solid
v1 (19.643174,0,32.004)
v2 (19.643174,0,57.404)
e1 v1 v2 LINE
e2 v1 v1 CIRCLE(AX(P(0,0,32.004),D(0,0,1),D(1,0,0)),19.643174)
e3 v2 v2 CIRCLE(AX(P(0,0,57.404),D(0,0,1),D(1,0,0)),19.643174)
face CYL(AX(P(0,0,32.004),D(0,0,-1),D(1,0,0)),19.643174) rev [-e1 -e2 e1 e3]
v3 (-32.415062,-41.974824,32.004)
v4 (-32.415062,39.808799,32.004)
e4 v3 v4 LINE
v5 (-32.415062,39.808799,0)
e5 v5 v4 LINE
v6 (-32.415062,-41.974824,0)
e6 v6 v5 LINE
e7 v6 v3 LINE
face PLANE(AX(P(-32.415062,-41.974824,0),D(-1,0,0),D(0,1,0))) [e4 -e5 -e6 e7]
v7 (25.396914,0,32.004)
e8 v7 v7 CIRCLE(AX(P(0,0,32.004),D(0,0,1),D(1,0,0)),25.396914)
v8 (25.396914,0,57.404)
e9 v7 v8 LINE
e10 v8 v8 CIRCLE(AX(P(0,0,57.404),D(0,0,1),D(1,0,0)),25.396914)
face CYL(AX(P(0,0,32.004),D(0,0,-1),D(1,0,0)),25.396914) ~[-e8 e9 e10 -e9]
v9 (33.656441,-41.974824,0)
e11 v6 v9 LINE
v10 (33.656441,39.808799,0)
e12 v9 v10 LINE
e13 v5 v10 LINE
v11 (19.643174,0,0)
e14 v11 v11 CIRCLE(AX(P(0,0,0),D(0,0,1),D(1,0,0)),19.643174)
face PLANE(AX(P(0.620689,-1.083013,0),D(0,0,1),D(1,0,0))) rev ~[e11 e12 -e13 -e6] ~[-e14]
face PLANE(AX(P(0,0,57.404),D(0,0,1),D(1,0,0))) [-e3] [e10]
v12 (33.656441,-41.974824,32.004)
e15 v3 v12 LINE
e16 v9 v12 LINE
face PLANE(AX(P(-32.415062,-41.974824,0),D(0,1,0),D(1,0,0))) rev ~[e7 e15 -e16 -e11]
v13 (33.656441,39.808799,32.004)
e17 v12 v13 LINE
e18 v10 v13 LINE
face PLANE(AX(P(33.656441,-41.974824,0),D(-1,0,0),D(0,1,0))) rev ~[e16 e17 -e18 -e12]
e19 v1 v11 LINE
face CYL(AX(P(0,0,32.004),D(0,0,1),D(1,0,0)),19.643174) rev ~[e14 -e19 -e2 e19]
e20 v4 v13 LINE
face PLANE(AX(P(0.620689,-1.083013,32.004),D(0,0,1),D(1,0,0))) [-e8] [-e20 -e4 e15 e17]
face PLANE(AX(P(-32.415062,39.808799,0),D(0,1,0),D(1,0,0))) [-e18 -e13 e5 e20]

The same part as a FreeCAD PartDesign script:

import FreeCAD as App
import Part
import Sketcher
from FreeCAD import Vector
Q = App.Units.Quantity


def add_polygon(sketch, points):
    """Adds a closed chain of lines whose ends are joined by coincident constraints."""
    first, n = sketch.GeometryCount, len(points)
    for a, b in zip(points, points[1:] + points[:1]):
        sketch.addGeometry(Part.LineSegment(App.Vector(*a, 0), App.Vector(*b, 0)), False)
    for i in range(n):
        sketch.addConstraint(Sketcher.Constraint("Coincident", first + i, 2, first + (i + 1) % n, 1))

doc = App.newDocument("Part")
body = doc.addObject("PartDesign::Body", "Body")

sketch1 = doc.addObject("Sketcher::SketchObject", "Sketch")
body.addObject(sketch1)
sketch1.AttachmentSupport = (doc.XY_Plane, [""])
sketch1.MapMode = "FlatFace"
add_polygon(sketch1, [(-32, 40), (-32, -42), (34, -42), (34, 40)])
sketch1.addConstraint([
    Sketcher.Constraint("Vertical", 0),
    Sketcher.Constraint("Horizontal", 1),
    Sketcher.Constraint("Vertical", 2),
    Sketcher.Constraint("Horizontal", 3),
    Sketcher.Constraint("DistanceY", -1, 1, 2, 2, Q("39.808799 mm")),
    Sketcher.Constraint("DistanceX", 1, 1, 1, 2, Q("66.071503 mm")),
    Sketcher.Constraint("DistanceY", 0, 2, 0, 1, Q("81.783623 mm")),
    Sketcher.Constraint("DistanceX", -1, 1, 1, 2, Q("33.656441 mm")),
])
pad1 = doc.addObject("PartDesign::Pad", "Pad")
body.addObject(pad1)
pad1.Profile = sketch1
pad1.Length = Q("1.26 in")

sketch2 = doc.addObject("Sketcher::SketchObject", "Sketch001")
body.addObject(sketch2)
sketch2.AttachmentSupport = (doc.XY_Plane, [""])
sketch2.MapMode = "FlatFace"
sketch2.AttachmentOffset = App.Placement(Vector(0, 0, 1.26 * 25.4), App.Rotation())
sketch2.addGeometry(Part.Circle(Vector(0, 0, 0), Vector(0, 0, 1), 20), False)
sketch2.addConstraint([
    Sketcher.Constraint("Coincident", 0, 3, -1, 1),
    Sketcher.Constraint("Diameter", 0, Q("39.286349 mm")),
])
pocket1 = doc.addObject("PartDesign::Pocket", "Pocket")
body.addObject(pocket1)
pocket1.Profile = sketch2
pocket1.Length = Q("2.49 in")

sketch3 = doc.addObject("Sketcher::SketchObject", "Sketch002")
body.addObject(sketch3)
sketch3.AttachmentSupport = (doc.XY_Plane, [""])
sketch3.MapMode = "FlatFace"
sketch3.AttachmentOffset = App.Placement(Vector(0, 0, 1.26 * 25.4), App.Rotation())
sketch3.addGeometry([
    Part.Circle(Vector(0, 0, 0), Vector(0, 0, 1), 25),
    Part.Circle(Vector(0, 0, 0), Vector(0, 0, 1), 20),
], False)
sketch3.addConstraint([
    Sketcher.Constraint("Coincident", 0, 3, -1, 1),
    Sketcher.Constraint("Coincident", 1, 3, -1, 1),
    Sketcher.Constraint("Diameter", 1, Q("39.286349 mm")),
    Sketcher.Constraint("Diameter", 0, Q("50.793828 mm")),
])
pad2 = doc.addObject("PartDesign::Pad", "Pad001")
body.addObject(pad2)
pad2.Profile = sketch3
pad2.Length = Q("1 in")

doc.recompute()
